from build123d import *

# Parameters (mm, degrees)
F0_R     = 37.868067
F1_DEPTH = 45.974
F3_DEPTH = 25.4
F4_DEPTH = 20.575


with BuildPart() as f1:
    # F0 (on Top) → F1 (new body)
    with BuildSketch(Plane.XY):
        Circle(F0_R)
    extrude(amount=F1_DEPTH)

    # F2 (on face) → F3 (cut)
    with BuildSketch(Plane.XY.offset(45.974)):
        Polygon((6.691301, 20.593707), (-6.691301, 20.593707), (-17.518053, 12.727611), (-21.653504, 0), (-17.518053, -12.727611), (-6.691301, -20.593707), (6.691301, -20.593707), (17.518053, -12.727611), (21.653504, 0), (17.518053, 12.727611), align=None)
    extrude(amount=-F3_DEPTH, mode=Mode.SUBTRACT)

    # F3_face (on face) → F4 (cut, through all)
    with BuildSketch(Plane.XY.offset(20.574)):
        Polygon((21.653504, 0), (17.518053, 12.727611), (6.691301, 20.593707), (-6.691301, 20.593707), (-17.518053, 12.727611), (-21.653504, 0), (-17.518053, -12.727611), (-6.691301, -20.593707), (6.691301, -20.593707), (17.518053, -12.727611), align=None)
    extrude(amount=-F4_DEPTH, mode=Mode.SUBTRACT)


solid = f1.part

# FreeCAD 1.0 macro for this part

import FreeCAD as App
import Part
import Sketcher
from FreeCAD import Vector
Q = App.Units.Quantity

doc = App.newDocument("Part")
body = doc.addObject("PartDesign::Body", "Body")

# Sketch on XY plane
sketch1 = body.newObject("Sketcher::SketchObject", "Sketch")
sketch1.AttachmentSupport = (doc.getObject("XY_Plane"), [""])
sketch1.MapMode = "FlatFace"
sketch1.addGeometry(Part.Circle(Vector(0, 0, 0), Vector(0, 0, 1), 37.868067), False)
sketch1.addConstraint(Sketcher.Constraint("Coincident", 0, 3, -1, 1))
sketch1.addConstraint(Sketcher.Constraint("Diameter", 0, 75.736134))
pad1 = body.newObject("PartDesign::Pad", "Pad")
pad1.Profile = sketch1
pad1.Length = Q("1.81 in")

# Sketch on XY plane
sketch2 = body.newObject("Sketcher::SketchObject", "Sketch001")
sketch2.AttachmentSupport = (doc.getObject("XY_Plane"), [""])
sketch2.MapMode = "FlatFace"
sketch2.AttachmentOffset = App.Placement(Vector(0, 0, 1.81 * 25.4), App.Rotation())
sketch2.addGeometry(Part.LineSegment(Vector(6.691301, 20.593707, 0), Vector(-6.691301, 20.593707, 0)), False)
sketch2.addGeometry(Part.LineSegment(Vector(-6.691301, 20.593707, 0), Vector(-17.518053, 12.727611, 0)), False)
sketch2.addGeometry(Part.LineSegment(Vector(-17.518053, 12.727611, 0), Vector(-21.653504, 0, 0)), False)
sketch2.addGeometry(Part.LineSegment(Vector(-21.653504, 0, 0), Vector(-17.518053, -12.727611, 0)), False)
sketch2.addGeometry(Part.LineSegment(Vector(-17.518053, -12.727611, 0), Vector(-6.691301, -20.593707, 0)), False)
sketch2.addGeometry(Part.LineSegment(Vector(-6.691301, -20.593707, 0), Vector(6.691301, -20.593707, 0)), False)
sketch2.addGeometry(Part.LineSegment(Vector(6.691301, -20.593707, 0), Vector(17.518053, -12.727611, 0)), False)
sketch2.addGeometry(Part.LineSegment(Vector(17.518053, -12.727611, 0), Vector(21.653504, 0, 0)), False)
sketch2.addGeometry(Part.LineSegment(Vector(21.653504, 0, 0), Vector(17.518053, 12.727611, 0)), False)
sketch2.addGeometry(Part.LineSegment(Vector(17.518053, 12.727611, 0), Vector(6.691301, 20.593707, 0)), False)
sketch2.addConstraint(Sketcher.Constraint("Coincident", 0, 2, 1, 1))
sketch2.addConstraint(Sketcher.Constraint("Coincident", 1, 2, 2, 1))
sketch2.addConstraint(Sketcher.Constraint("Coincident", 2, 2, 3, 1))
sketch2.addConstraint(Sketcher.Constraint("Coincident", 3, 2, 4, 1))
sketch2.addConstraint(Sketcher.Constraint("Coincident", 4, 2, 5, 1))
sketch2.addConstraint(Sketcher.Constraint("Coincident", 5, 2, 6, 1))
sketch2.addConstraint(Sketcher.Constraint("Coincident", 6, 2, 7, 1))
sketch2.addConstraint(Sketcher.Constraint("Coincident", 7, 2, 8, 1))
sketch2.addConstraint(Sketcher.Constraint("Coincident", 8, 2, 9, 1))
sketch2.addConstraint(Sketcher.Constraint("Coincident", 9, 2, 0, 1))
sketch2.addConstraint(Sketcher.Constraint("Horizontal", 0))
sketch2.addConstraint(Sketcher.Constraint("Horizontal", 5))
sketch2.addConstraint(Sketcher.Constraint("Symmetric", 0, 2, 5, 2, -1, 1))
sketch2.addConstraint(Sketcher.Constraint("Symmetric", 1, 2, 6, 2, -1, 1))
sketch2.addConstraint(Sketcher.Constraint("Symmetric", 2, 2, 7, 2, -1, 1))
sketch2.addConstraint(Sketcher.Constraint("Symmetric", 3, 2, 8, 2, -1, 1))
sketch2.addConstraint(Sketcher.Constraint("Symmetric", 3, 2, 6, 2, -2))
sketch2.addConstraint(Sketcher.Constraint("PointOnObject", 2, 2, -1))
sketch2.addConstraint(Sketcher.Constraint("Parallel", 4, 9))
sketch2.addConstraint(Sketcher.Constraint("Vertical", 0, 2, 4, 2))
sketch2.addConstraint(Sketcher.Constraint("Equal", 1, 2))
sketch2.addConstraint(Sketcher.Constraint("Angle", 1, Q("-143.999999 deg")))
sketch2.addConstraint(Sketcher.Constraint("Angle", 2, Q("-107.999998 deg")))
sketch2.addConstraint(Sketcher.Constraint("DistanceX", 2, 2, -1, 1, Q("0.8525002 in")))
sketch2.addConstraint(Sketcher.Constraint("Distance", 1, 13.382602))
pocket1 = body.newObject("PartDesign::Pocket", "Pocket")
pocket1.Profile = sketch2
pocket1.Length = Q("1 in")

# Sketch on XY plane
sketch3 = body.newObject("Sketcher::SketchObject", "Sketch002")
sketch3.AttachmentSupport = (doc.getObject("XY_Plane"), [""])
sketch3.MapMode = "FlatFace"
sketch3.AttachmentOffset = App.Placement(Vector(0, 0, 0.81 * 25.4), App.Rotation())
sketch3.addGeometry(Part.LineSegment(Vector(21.653504, 0, 0), Vector(17.518053, 12.727611, 0)), False)
sketch3.addGeometry(Part.LineSegment(Vector(17.518053, 12.727611, 0), Vector(6.691301, 20.593707, 0)), False)
sketch3.addGeometry(Part.LineSegment(Vector(6.691301, 20.593707, 0), Vector(-6.691301, 20.593707, 0)), False)
sketch3.addGeometry(Part.LineSegment(Vector(-6.691301, 20.593707, 0), Vector(-17.518053, 12.727611, 0)), False)
sketch3.addGeometry(Part.LineSegment(Vector(-17.518053, 12.727611, 0), Vector(-21.653504, 0, 0)), False)
sketch3.addGeometry(Part.LineSegment(Vector(-21.653504, 0, 0), Vector(-17.518053, -12.727611, 0)), False)
sketch3.addGeometry(Part.LineSegment(Vector(-17.518053, -12.727611, 0), Vector(-6.691301, -20.593707, 0)), False)
sketch3.addGeometry(Part.LineSegment(Vector(-6.691301, -20.593707, 0), Vector(6.691301, -20.593707, 0)), False)
sketch3.addGeometry(Part.LineSegment(Vector(6.691301, -20.593707, 0), Vector(17.518053, -12.727611, 0)), False)
sketch3.addGeometry(Part.LineSegment(Vector(17.518053, -12.727611, 0), Vector(21.653504, 0, 0)), False)
sketch3.addConstraint(Sketcher.Constraint("Coincident", 0, 2, 1, 1))
sketch3.addConstraint(Sketcher.Constraint("Coincident", 1, 2, 2, 1))
sketch3.addConstraint(Sketcher.Constraint("Coincident", 2, 2, 3, 1))
sketch3.addConstraint(Sketcher.Constraint("Coincident", 3, 2, 4, 1))
sketch3.addConstraint(Sketcher.Constraint("Coincident", 4, 2, 5, 1))
sketch3.addConstraint(Sketcher.Constraint("Coincident", 5, 2, 6, 1))
sketch3.addConstraint(Sketcher.Constraint("Coincident", 6, 2, 7, 1))
sketch3.addConstraint(Sketcher.Constraint("Coincident", 7, 2, 8, 1))
sketch3.addConstraint(Sketcher.Constraint("Coincident", 8, 2, 9, 1))
sketch3.addConstraint(Sketcher.Constraint("Coincident", 9, 2, 0, 1))
sketch3.addConstraint(Sketcher.Constraint("Horizontal", 2))
sketch3.addConstraint(Sketcher.Constraint("Horizontal", 7))
sketch3.addConstraint(Sketcher.Constraint("Symmetric", 0, 2, 5, 2, -1, 1))
sketch3.addConstraint(Sketcher.Constraint("Symmetric", 1, 2, 6, 2, -1, 1))
sketch3.addConstraint(Sketcher.Constraint("Symmetric", 3, 2, 8, 2, -1, 1))
sketch3.addConstraint(Sketcher.Constraint("Symmetric", 4, 2, 9, 2, -1, 1))
sketch3.addConstraint(Sketcher.Constraint("Symmetric", 0, 2, 3, 2, -2))
sketch3.addConstraint(Sketcher.Constraint("PointOnObject", 4, 2, -1))
sketch3.addConstraint(Sketcher.Constraint("Parallel", 3, 8))
sketch3.addConstraint(Sketcher.Constraint("Vertical", 2, 2, 6, 2))
sketch3.addConstraint(Sketcher.Constraint("Equal", 0, 1))
sketch3.addConstraint(Sketcher.Constraint("Angle", 0, Q("107.999998 deg")))
sketch3.addConstraint(Sketcher.Constraint("Angle", 1, Q("143.999999 deg")))
sketch3.addConstraint(Sketcher.Constraint("DistanceX", 4, 2, -1, 1, Q("0.8525002 in")))
sketch3.addConstraint(Sketcher.Constraint("Distance", 1, 13.382602))
pocket2 = body.newObject("PartDesign::Pocket", "Pocket001")
pocket2.Profile = sketch3
pocket2.Type = "ThroughAll"

doc.recompute()
